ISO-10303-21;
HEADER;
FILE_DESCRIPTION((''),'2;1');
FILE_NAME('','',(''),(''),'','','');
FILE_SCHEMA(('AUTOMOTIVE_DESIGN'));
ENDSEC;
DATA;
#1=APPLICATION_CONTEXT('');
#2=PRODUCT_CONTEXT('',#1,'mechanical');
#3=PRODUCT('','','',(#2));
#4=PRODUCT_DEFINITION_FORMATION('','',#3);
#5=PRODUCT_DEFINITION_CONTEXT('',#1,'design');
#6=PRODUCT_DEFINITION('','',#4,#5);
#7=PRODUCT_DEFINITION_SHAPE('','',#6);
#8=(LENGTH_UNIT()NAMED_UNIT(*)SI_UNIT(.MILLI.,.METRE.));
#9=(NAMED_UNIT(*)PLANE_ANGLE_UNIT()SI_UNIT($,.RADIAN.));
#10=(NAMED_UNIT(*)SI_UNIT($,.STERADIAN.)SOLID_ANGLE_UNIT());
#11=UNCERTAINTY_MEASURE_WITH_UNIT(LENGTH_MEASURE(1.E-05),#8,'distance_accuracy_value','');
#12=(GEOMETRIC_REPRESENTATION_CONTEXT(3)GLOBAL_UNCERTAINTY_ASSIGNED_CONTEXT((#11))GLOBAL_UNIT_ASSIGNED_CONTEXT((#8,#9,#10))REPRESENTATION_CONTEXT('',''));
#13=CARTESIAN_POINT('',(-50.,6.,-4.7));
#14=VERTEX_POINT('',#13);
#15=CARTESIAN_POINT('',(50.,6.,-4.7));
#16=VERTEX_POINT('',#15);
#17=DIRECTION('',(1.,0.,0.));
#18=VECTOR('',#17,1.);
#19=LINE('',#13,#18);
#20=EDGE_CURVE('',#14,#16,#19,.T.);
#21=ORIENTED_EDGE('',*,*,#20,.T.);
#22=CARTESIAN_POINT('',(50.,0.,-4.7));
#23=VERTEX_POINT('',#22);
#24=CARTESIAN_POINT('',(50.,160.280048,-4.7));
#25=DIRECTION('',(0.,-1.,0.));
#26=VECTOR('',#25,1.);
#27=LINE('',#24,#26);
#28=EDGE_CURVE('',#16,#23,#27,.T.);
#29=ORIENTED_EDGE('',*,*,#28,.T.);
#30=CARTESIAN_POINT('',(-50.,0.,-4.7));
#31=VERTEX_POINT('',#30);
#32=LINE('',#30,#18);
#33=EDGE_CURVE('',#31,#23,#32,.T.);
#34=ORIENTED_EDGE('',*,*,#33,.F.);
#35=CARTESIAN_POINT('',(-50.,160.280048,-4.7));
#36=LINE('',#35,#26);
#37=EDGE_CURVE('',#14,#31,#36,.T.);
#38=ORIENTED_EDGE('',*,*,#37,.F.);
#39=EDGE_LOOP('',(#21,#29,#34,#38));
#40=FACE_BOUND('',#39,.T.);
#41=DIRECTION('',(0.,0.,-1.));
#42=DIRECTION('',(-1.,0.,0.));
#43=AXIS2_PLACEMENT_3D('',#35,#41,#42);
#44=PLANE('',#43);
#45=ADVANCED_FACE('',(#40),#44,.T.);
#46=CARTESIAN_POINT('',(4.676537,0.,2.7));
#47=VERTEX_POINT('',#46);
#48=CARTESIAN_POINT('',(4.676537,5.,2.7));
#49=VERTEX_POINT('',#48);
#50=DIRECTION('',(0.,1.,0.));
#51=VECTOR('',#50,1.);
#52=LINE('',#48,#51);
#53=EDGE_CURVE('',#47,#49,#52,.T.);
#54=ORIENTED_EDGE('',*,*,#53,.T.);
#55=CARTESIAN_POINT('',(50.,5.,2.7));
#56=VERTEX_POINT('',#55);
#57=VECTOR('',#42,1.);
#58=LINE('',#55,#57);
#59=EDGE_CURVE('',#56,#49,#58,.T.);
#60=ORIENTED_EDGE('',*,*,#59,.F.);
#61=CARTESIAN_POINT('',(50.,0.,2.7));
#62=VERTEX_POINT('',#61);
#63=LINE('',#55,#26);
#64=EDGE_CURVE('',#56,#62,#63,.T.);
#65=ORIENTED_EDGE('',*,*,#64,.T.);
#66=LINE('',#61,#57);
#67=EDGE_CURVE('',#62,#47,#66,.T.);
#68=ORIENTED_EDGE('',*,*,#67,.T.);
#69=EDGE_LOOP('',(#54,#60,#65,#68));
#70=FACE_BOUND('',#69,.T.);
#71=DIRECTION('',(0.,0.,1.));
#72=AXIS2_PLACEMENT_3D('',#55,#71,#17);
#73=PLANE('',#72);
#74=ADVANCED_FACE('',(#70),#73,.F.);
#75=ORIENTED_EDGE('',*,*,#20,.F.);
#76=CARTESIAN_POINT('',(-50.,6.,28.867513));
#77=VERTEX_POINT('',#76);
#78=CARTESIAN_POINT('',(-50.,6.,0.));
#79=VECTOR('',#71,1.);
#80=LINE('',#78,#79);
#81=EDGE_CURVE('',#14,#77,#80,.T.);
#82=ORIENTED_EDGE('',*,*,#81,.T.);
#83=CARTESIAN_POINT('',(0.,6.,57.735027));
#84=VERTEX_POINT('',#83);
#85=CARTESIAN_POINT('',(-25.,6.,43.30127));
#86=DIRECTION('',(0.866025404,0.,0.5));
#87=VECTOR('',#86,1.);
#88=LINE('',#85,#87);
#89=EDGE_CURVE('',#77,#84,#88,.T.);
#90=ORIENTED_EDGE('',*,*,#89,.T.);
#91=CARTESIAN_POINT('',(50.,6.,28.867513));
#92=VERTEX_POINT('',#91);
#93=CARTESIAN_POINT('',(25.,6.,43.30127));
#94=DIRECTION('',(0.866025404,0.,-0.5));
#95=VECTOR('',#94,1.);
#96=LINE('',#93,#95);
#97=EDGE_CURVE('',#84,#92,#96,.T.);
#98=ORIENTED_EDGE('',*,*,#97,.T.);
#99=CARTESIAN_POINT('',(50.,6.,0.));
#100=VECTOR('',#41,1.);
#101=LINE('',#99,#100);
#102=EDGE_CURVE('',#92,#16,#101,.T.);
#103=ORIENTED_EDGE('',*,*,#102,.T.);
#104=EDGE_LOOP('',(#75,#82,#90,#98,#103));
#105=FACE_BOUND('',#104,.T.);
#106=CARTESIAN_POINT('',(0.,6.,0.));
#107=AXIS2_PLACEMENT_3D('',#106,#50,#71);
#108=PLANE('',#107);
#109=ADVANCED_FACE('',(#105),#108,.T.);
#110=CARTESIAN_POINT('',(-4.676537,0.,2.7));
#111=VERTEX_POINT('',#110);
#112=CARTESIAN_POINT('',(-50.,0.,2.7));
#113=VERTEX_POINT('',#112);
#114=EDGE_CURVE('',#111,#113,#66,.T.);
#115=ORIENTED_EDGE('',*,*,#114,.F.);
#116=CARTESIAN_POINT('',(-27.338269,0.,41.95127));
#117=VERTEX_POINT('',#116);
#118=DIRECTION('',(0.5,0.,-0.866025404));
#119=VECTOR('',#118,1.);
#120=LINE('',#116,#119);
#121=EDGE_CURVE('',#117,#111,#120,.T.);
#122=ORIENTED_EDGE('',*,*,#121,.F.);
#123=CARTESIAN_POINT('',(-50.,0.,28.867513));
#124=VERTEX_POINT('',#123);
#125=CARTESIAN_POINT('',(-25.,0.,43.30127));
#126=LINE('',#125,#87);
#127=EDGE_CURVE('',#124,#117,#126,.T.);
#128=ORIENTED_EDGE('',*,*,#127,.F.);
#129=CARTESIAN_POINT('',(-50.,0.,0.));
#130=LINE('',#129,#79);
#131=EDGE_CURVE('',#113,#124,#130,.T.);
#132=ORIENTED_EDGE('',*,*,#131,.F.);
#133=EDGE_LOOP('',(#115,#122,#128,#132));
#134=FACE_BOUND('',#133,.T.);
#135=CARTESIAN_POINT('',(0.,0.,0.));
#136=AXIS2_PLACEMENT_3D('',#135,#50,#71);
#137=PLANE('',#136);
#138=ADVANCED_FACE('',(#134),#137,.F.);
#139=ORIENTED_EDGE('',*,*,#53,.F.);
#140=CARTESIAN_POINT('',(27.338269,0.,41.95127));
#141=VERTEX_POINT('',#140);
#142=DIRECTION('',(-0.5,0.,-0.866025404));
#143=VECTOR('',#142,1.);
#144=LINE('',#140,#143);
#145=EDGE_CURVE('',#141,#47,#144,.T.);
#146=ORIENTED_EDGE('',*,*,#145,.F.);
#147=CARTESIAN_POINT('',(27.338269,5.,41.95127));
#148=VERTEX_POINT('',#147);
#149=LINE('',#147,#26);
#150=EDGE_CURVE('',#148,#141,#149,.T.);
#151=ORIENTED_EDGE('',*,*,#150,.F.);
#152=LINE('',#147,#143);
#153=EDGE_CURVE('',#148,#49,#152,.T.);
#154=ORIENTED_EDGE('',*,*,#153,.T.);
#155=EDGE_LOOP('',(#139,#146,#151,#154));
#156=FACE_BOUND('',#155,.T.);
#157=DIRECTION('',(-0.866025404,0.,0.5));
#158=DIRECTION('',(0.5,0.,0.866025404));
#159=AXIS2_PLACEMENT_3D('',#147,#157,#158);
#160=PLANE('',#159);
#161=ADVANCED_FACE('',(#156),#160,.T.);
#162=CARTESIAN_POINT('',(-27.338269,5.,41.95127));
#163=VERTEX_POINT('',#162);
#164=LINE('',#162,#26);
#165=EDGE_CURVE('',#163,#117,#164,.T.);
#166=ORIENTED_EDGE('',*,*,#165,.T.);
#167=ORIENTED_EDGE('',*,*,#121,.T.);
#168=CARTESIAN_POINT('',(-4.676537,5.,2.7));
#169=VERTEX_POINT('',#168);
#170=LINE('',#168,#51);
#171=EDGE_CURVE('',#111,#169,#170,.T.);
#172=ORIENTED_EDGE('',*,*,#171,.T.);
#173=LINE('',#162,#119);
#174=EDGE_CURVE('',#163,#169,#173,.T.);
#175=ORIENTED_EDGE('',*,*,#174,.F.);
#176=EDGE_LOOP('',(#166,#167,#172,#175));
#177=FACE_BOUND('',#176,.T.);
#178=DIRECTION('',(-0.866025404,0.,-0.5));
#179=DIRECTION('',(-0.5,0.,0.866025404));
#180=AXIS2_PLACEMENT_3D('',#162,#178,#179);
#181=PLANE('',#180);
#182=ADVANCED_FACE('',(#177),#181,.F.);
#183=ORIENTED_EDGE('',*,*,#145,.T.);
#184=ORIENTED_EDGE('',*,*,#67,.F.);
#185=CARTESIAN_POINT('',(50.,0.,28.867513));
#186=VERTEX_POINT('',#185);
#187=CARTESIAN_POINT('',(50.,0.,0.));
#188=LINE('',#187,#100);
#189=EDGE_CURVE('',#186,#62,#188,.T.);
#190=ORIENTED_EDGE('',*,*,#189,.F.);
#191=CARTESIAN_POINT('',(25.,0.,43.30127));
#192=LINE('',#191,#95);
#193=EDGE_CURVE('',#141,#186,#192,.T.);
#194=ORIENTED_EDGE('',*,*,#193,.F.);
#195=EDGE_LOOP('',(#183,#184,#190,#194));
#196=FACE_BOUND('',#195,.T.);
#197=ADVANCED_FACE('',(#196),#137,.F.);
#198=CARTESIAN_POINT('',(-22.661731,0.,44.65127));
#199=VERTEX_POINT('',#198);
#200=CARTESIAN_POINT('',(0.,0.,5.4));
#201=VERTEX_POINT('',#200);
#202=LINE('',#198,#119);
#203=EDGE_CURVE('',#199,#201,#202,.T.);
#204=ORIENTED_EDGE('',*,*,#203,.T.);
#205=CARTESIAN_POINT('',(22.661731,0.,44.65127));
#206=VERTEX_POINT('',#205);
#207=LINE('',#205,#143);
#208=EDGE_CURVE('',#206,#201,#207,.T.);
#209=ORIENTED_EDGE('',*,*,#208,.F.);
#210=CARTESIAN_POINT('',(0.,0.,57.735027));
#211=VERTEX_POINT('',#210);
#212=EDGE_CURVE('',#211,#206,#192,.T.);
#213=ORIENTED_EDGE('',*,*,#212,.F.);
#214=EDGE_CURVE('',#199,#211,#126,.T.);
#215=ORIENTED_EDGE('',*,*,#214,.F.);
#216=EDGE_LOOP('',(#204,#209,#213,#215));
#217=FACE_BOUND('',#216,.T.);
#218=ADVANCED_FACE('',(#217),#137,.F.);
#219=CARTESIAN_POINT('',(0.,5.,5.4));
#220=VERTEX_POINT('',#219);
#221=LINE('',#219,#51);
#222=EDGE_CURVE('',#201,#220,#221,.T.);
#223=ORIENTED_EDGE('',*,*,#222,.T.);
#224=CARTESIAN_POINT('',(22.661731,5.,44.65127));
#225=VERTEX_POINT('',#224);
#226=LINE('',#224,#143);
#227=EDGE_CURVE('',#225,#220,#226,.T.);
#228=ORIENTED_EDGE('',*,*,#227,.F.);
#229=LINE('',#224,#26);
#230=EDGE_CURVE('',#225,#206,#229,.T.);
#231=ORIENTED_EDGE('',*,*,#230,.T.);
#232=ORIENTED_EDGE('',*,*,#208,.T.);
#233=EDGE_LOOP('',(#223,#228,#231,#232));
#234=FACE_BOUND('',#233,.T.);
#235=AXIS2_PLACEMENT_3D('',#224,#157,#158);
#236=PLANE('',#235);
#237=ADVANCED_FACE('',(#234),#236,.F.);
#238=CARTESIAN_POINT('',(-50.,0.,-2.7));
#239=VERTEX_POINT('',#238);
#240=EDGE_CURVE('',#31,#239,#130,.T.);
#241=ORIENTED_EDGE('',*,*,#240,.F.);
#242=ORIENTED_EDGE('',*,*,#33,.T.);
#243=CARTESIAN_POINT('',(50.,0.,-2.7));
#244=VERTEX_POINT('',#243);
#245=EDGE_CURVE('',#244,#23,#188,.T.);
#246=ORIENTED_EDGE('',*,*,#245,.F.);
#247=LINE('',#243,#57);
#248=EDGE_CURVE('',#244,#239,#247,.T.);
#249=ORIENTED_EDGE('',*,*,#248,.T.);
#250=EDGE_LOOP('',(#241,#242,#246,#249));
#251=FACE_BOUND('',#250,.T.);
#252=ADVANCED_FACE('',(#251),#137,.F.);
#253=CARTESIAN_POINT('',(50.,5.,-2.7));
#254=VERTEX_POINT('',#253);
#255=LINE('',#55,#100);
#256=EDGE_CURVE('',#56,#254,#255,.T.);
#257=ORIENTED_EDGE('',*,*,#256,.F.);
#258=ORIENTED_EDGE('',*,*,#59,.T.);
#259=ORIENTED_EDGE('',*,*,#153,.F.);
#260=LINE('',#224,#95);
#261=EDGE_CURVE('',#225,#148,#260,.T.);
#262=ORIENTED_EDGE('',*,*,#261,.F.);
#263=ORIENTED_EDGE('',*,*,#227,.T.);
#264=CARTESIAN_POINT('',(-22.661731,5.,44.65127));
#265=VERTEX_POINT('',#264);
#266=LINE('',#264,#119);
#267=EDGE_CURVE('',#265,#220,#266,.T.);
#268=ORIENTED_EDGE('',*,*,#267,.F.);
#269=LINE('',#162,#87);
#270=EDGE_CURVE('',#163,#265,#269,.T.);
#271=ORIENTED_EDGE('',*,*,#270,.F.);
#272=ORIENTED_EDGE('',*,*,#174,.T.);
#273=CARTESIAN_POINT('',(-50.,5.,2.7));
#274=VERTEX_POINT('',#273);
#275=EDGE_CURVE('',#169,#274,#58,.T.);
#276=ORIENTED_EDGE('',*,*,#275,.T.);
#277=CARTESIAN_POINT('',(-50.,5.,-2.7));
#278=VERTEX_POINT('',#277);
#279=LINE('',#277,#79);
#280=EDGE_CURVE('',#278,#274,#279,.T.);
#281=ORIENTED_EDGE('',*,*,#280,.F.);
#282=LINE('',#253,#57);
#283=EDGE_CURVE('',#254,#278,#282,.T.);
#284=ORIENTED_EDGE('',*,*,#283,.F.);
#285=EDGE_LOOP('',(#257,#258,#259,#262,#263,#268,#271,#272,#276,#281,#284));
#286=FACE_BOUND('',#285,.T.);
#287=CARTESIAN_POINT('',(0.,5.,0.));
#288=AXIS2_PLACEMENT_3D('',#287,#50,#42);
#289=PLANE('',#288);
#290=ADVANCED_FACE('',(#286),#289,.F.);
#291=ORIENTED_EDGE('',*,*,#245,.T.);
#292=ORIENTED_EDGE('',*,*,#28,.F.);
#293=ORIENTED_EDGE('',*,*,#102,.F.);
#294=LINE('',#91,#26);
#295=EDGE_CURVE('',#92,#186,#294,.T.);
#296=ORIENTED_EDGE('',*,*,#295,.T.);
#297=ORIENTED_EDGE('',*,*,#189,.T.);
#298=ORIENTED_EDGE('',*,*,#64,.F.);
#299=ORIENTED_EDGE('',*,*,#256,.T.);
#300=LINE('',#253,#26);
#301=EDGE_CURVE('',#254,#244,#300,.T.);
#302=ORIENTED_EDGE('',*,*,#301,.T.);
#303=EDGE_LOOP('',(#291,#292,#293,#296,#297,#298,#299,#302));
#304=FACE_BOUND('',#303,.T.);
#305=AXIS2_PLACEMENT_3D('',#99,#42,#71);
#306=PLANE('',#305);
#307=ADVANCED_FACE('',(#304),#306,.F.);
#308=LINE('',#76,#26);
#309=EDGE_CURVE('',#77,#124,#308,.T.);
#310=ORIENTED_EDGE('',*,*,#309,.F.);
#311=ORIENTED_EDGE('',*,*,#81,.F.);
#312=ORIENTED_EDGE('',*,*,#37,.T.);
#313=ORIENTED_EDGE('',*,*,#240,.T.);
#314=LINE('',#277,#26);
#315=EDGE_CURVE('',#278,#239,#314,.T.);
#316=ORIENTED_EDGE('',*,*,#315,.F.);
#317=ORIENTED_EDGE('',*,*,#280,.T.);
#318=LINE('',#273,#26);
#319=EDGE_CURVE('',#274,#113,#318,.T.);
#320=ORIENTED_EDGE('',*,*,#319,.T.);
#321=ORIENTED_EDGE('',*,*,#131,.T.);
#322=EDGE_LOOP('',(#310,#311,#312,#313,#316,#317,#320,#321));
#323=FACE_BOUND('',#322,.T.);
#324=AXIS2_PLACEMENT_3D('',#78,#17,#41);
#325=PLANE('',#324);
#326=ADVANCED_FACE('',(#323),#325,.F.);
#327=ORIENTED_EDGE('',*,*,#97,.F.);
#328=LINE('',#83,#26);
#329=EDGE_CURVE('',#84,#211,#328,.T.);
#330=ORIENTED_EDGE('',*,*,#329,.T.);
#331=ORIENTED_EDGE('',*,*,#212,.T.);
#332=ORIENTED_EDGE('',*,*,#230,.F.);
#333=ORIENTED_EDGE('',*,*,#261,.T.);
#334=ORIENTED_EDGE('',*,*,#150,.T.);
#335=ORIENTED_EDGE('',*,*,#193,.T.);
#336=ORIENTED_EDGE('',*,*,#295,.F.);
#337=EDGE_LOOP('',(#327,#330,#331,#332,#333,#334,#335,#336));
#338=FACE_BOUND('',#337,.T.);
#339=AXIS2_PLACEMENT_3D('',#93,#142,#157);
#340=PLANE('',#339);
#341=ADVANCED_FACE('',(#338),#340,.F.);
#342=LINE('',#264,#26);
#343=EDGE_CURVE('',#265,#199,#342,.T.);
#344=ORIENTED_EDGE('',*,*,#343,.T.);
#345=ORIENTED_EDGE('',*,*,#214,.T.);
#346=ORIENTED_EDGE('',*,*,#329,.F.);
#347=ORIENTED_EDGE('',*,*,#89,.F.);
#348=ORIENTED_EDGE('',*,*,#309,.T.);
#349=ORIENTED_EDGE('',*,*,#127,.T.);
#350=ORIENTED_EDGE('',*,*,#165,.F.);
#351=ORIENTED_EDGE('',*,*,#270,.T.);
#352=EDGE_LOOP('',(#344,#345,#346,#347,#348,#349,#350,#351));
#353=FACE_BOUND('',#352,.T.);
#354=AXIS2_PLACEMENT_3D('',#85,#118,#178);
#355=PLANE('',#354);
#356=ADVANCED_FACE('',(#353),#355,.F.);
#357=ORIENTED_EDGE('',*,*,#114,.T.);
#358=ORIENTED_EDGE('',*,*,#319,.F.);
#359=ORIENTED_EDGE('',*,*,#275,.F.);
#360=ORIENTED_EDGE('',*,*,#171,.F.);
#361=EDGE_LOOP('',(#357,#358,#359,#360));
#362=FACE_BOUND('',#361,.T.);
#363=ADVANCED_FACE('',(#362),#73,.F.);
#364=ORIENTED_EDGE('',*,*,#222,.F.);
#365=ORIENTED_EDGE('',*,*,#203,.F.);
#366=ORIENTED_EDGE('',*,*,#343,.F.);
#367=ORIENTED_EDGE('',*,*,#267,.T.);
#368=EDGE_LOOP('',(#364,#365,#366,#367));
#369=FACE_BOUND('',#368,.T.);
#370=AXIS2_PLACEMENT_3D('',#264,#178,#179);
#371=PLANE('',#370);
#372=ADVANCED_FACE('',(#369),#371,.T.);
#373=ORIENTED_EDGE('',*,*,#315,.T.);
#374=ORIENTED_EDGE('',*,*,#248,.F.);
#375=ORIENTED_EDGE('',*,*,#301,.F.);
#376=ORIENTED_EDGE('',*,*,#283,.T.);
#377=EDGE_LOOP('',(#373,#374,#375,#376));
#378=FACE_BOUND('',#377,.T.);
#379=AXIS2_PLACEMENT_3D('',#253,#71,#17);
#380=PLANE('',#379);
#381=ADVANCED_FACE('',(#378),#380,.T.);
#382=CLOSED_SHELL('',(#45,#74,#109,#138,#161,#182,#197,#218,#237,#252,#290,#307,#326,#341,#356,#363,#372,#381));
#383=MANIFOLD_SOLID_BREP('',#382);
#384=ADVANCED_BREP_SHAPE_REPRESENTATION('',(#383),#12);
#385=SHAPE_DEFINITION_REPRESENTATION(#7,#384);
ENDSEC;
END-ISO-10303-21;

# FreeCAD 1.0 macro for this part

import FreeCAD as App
import Part
import Sketcher

V = App.Vector
Q = App.Units.Quantity

doc = App.newDocument("Part")
body = doc.addObject("PartDesign::Body", "Body")

sketch1 = body.newObject("Sketcher::SketchObject", "Sketch")
sketch1.AttachmentSupport = (doc.getObject("XZ_Plane"), [""])
sketch1.MapMode = "FlatFace"
sketch1.addGeometry(Part.LineSegment(V(0, -58, 0), V(-50, -29, 0)), False)
sketch1.addGeometry(Part.LineSegment(V(-50, -29, 0), V(-50, 29, 0)), False)
sketch1.addGeometry(Part.LineSegment(V(-50, 29, 0), V(0, 58, 0)), False)
sketch1.addGeometry(Part.LineSegment(V(0, 58, 0), V(50, 29, 0)), False)
sketch1.addGeometry(Part.LineSegment(V(50, 29, 0), V(50, -29, 0)), False)
sketch1.addGeometry(Part.LineSegment(V(50, -29, 0), V(0, -58, 0)), False)
sketch1.addConstraint(Sketcher.Constraint("Coincident", 0, 2, 1, 1))
sketch1.addConstraint(Sketcher.Constraint("Coincident", 1, 2, 2, 1))
sketch1.addConstraint(Sketcher.Constraint("Coincident", 2, 2, 3, 1))
sketch1.addConstraint(Sketcher.Constraint("Coincident", 3, 2, 4, 1))
sketch1.addConstraint(Sketcher.Constraint("Coincident", 4, 2, 5, 1))
sketch1.addConstraint(Sketcher.Constraint("Coincident", 5, 2, 0, 1))
sketch1.addConstraint(Sketcher.Constraint("Vertical", 1))
sketch1.addConstraint(Sketcher.Constraint("Vertical", 4))
sketch1.addConstraint(Sketcher.Constraint("Symmetric", 0, 2, 3, 2, -1, 1))
sketch1.addConstraint(Sketcher.Constraint("Symmetric", 2, 2, 5, 2, -1, 1))
sketch1.addConstraint(Sketcher.Constraint("PointOnObject", 2, 2, -2))
sketch1.addConstraint(Sketcher.Constraint("Parallel", 2, 5))
sketch1.addConstraint(Sketcher.Constraint("Horizontal", 1, 2, 3, 2))
sketch1.addConstraint(Sketcher.Constraint("Angle", 0, Q("150 deg")))
sketch1.addConstraint(Sketcher.Constraint("DistanceX", 0, 2, -1, 1, 50.0))
sketch1.addConstraint(Sketcher.Constraint("DistanceY", 1, 1, 1, 2, 57.735027))
pad1 = body.newObject("PartDesign::Pad", "Pad")
pad1.Profile = sketch1
pad1.Length = 6
pad1.Reversed = True

sketch2 = body.newObject("Sketcher::SketchObject", "Sketch001")
sketch2.AttachmentSupport = (doc.getObject("XZ_Plane"), [""])
sketch2.MapMode = "FlatFace"
sketch2.addGeometry(Part.LineSegment(V(0, 5, 0), V(-23, 45, 0)), False)
sketch2.addGeometry(Part.LineSegment(V(-23, 45, 0), V(-27, 42, 0)), False)
sketch2.addGeometry(Part.LineSegment(V(-27, 42, 0), V(-5, 3, 0)), False)
sketch2.addGeometry(Part.LineSegment(V(-5, 3, 0), V(-50, 3, 0)), False)
sketch2.addGeometry(Part.LineSegment(V(-50, 3, 0), V(-50, -3, 0)), False)
sketch2.addGeometry(Part.LineSegment(V(-50, -3, 0), V(50, -3, 0)), False)
sketch2.addGeometry(Part.LineSegment(V(50, -3, 0), V(50, 3, 0)), False)
sketch2.addGeometry(Part.LineSegment(V(50, 3, 0), V(5, 3, 0)), False)
sketch2.addGeometry(Part.LineSegment(V(5, 3, 0), V(27, 42, 0)), False)
sketch2.addGeometry(Part.LineSegment(V(27, 42, 0), V(23, 45, 0)), False)
sketch2.addGeometry(Part.LineSegment(V(23, 45, 0), V(0, 5, 0)), False)
sketch2.addConstraint(Sketcher.Constraint("Coincident", 0, 2, 1, 1))
sketch2.addConstraint(Sketcher.Constraint("Coincident", 1, 2, 2, 1))
sketch2.addConstraint(Sketcher.Constraint("Coincident", 2, 2, 3, 1))
sketch2.addConstraint(Sketcher.Constraint("Coincident", 3, 2, 4, 1))
sketch2.addConstraint(Sketcher.Constraint("Coincident", 4, 2, 5, 1))
sketch2.addConstraint(Sketcher.Constraint("Coincident", 5, 2, 6, 1))
sketch2.addConstraint(Sketcher.Constraint("Coincident", 6, 2, 7, 1))
sketch2.addConstraint(Sketcher.Constraint("Coincident", 7, 2, 8, 1))
sketch2.addConstraint(Sketcher.Constraint("Coincident", 8, 2, 9, 1))
sketch2.addConstraint(Sketcher.Constraint("Coincident", 9, 2, 10, 1))
sketch2.addConstraint(Sketcher.Constraint("Coincident", 10, 2, 0, 1))
sketch2.addConstraint(Sketcher.Constraint("Horizontal", 3))
sketch2.addConstraint(Sketcher.Constraint("Vertical", 4))
sketch2.addConstraint(Sketcher.Constraint("Horizontal", 5))
sketch2.addConstraint(Sketcher.Constraint("Vertical", 6))
sketch2.addConstraint(Sketcher.Constraint("Horizontal", 7))
sketch2.addConstraint(Sketcher.Constraint("Symmetric", 3, 2, 5, 2, -1, 1))
sketch2.addConstraint(Sketcher.Constraint("Symmetric", 2, 2, 7, 2, -2))
sketch2.addConstraint(Sketcher.Constraint("Symmetric", 1, 2, 8, 2, -2))
sketch2.addConstraint(Sketcher.Constraint("Symmetric", 0, 2, 9, 2, -2))
sketch2.addConstraint(Sketcher.Constraint("PointOnObject", 10, 2, -2))
sketch2.addConstraint(Sketcher.Constraint("Perpendicular", 0, 1))
sketch2.addConstraint(Sketcher.Constraint("Perpendicular", 1, 2))
sketch2.addConstraint(Sketcher.Constraint("Equal", 0, 2))
sketch2.addConstraint(Sketcher.Constraint("DistanceX", 5, 1, 5, 2, 100.0))
sketch2.addConstraint(Sketcher.Constraint("Angle", 0, Q("120 deg")))
sketch2.addConstraint(Sketcher.Constraint("DistanceY", 4, 2, 4, 1, 5.4))
sketch2.addConstraint(Sketcher.Constraint("DistanceX", 0, 2, 8, 2, 50.0))
sketch2.addConstraint(Sketcher.Constraint("Distance", 1, 5.4))
pocket1 = body.newObject("PartDesign::Pocket", "Pocket")
pocket1.Profile = sketch2
pocket1.Length = 5

sketch3 = body.newObject("Sketcher::SketchObject", "Sketch002")
sketch3.AttachmentSupport = (doc.getObject("XZ_Plane"), [""])
sketch3.MapMode = "FlatFace"
sketch3.addGeometry(Part.LineSegment(V(-66, 74, 0), V(-66, -74, 0)), False)
sketch3.addGeometry(Part.LineSegment(V(-66, -74, 0), V(66, -74, 0)), False)
sketch3.addGeometry(Part.LineSegment(V(66, -74, 0), V(66, 74, 0)), False)
sketch3.addGeometry(Part.LineSegment(V(66, 74, 0), V(-66, 74, 0)), False)
sketch3.addGeometry(Part.LineSegment(V(-50, -5, 0), V(-50, 29, 0)), False)
sketch3.addGeometry(Part.LineSegment(V(-50, 29, 0), V(0, 58, 0)), False)
sketch3.addGeometry(Part.LineSegment(V(0, 58, 0), V(50, 29, 0)), False)
sketch3.addGeometry(Part.LineSegment(V(50, 29, 0), V(50, -5, 0)), False)
sketch3.addGeometry(Part.LineSegment(V(50, -5, 0), V(-50, -5, 0)), False)
sketch3.addConstraint(Sketcher.Constraint("Coincident", 0, 2, 1, 1))
sketch3.addConstraint(Sketcher.Constraint("Coincident", 1, 2, 2, 1))
sketch3.addConstraint(Sketcher.Constraint("Coincident", 2, 2, 3, 1))
sketch3.addConstraint(Sketcher.Constraint("Coincident", 3, 2, 0, 1))
sketch3.addConstraint(Sketcher.Constraint("Coincident", 4, 2, 5, 1))
sketch3.addConstraint(Sketcher.Constraint("Coincident", 5, 2, 6, 1))
sketch3.addConstraint(Sketcher.Constraint("Coincident", 6, 2, 7, 1))
sketch3.addConstraint(Sketcher.Constraint("Coincident", 7, 2, 8, 1))
sketch3.addConstraint(Sketcher.Constraint("Coincident", 8, 2, 4, 1))
sketch3.addConstraint(Sketcher.Constraint("Vertical", 0))
sketch3.addConstraint(Sketcher.Constraint("Horizontal", 1))
sketch3.addConstraint(Sketcher.Constraint("Vertical", 2))
sketch3.addConstraint(Sketcher.Constraint("Horizontal", 3))
sketch3.addConstraint(Sketcher.Constraint("Vertical", 4))
sketch3.addConstraint(Sketcher.Constraint("Vertical", 7))
sketch3.addConstraint(Sketcher.Constraint("Horizontal", 8))
sketch3.addConstraint(Sketcher.Constraint("Symmetric", 0, 2, 2, 2, -1, 1))
sketch3.addConstraint(Sketcher.Constraint("Symmetric", 4, 2, 6, 2, -2))
sketch3.addConstraint(Sketcher.Constraint("PointOnObject", 5, 2, -2))
sketch3.addConstraint(Sketcher.Constraint("DistanceX", 8, 2, 8, 1, 100.0))
sketch3.addConstraint(Sketcher.Constraint("Angle", 5, Q("30 deg")))
sketch3.addConstraint(Sketcher.Constraint("DistanceY", 7, 2, -1, 1, 4.7))
sketch3.addConstraint(Sketcher.Constraint("DistanceX", 1, 1, 1, 2, 132.574))
sketch3.addConstraint(Sketcher.Constraint("DistanceY", 0, 2, 0, 1, 148.044))
sketch3.addConstraint(Sketcher.Constraint("DistanceY", 4, 1, 4, 2, 33.567513))
pocket2 = body.newObject("PartDesign::Pocket", "Pocket001")
pocket2.Profile = sketch3
pocket2.Length = 6

doc.recompute()
